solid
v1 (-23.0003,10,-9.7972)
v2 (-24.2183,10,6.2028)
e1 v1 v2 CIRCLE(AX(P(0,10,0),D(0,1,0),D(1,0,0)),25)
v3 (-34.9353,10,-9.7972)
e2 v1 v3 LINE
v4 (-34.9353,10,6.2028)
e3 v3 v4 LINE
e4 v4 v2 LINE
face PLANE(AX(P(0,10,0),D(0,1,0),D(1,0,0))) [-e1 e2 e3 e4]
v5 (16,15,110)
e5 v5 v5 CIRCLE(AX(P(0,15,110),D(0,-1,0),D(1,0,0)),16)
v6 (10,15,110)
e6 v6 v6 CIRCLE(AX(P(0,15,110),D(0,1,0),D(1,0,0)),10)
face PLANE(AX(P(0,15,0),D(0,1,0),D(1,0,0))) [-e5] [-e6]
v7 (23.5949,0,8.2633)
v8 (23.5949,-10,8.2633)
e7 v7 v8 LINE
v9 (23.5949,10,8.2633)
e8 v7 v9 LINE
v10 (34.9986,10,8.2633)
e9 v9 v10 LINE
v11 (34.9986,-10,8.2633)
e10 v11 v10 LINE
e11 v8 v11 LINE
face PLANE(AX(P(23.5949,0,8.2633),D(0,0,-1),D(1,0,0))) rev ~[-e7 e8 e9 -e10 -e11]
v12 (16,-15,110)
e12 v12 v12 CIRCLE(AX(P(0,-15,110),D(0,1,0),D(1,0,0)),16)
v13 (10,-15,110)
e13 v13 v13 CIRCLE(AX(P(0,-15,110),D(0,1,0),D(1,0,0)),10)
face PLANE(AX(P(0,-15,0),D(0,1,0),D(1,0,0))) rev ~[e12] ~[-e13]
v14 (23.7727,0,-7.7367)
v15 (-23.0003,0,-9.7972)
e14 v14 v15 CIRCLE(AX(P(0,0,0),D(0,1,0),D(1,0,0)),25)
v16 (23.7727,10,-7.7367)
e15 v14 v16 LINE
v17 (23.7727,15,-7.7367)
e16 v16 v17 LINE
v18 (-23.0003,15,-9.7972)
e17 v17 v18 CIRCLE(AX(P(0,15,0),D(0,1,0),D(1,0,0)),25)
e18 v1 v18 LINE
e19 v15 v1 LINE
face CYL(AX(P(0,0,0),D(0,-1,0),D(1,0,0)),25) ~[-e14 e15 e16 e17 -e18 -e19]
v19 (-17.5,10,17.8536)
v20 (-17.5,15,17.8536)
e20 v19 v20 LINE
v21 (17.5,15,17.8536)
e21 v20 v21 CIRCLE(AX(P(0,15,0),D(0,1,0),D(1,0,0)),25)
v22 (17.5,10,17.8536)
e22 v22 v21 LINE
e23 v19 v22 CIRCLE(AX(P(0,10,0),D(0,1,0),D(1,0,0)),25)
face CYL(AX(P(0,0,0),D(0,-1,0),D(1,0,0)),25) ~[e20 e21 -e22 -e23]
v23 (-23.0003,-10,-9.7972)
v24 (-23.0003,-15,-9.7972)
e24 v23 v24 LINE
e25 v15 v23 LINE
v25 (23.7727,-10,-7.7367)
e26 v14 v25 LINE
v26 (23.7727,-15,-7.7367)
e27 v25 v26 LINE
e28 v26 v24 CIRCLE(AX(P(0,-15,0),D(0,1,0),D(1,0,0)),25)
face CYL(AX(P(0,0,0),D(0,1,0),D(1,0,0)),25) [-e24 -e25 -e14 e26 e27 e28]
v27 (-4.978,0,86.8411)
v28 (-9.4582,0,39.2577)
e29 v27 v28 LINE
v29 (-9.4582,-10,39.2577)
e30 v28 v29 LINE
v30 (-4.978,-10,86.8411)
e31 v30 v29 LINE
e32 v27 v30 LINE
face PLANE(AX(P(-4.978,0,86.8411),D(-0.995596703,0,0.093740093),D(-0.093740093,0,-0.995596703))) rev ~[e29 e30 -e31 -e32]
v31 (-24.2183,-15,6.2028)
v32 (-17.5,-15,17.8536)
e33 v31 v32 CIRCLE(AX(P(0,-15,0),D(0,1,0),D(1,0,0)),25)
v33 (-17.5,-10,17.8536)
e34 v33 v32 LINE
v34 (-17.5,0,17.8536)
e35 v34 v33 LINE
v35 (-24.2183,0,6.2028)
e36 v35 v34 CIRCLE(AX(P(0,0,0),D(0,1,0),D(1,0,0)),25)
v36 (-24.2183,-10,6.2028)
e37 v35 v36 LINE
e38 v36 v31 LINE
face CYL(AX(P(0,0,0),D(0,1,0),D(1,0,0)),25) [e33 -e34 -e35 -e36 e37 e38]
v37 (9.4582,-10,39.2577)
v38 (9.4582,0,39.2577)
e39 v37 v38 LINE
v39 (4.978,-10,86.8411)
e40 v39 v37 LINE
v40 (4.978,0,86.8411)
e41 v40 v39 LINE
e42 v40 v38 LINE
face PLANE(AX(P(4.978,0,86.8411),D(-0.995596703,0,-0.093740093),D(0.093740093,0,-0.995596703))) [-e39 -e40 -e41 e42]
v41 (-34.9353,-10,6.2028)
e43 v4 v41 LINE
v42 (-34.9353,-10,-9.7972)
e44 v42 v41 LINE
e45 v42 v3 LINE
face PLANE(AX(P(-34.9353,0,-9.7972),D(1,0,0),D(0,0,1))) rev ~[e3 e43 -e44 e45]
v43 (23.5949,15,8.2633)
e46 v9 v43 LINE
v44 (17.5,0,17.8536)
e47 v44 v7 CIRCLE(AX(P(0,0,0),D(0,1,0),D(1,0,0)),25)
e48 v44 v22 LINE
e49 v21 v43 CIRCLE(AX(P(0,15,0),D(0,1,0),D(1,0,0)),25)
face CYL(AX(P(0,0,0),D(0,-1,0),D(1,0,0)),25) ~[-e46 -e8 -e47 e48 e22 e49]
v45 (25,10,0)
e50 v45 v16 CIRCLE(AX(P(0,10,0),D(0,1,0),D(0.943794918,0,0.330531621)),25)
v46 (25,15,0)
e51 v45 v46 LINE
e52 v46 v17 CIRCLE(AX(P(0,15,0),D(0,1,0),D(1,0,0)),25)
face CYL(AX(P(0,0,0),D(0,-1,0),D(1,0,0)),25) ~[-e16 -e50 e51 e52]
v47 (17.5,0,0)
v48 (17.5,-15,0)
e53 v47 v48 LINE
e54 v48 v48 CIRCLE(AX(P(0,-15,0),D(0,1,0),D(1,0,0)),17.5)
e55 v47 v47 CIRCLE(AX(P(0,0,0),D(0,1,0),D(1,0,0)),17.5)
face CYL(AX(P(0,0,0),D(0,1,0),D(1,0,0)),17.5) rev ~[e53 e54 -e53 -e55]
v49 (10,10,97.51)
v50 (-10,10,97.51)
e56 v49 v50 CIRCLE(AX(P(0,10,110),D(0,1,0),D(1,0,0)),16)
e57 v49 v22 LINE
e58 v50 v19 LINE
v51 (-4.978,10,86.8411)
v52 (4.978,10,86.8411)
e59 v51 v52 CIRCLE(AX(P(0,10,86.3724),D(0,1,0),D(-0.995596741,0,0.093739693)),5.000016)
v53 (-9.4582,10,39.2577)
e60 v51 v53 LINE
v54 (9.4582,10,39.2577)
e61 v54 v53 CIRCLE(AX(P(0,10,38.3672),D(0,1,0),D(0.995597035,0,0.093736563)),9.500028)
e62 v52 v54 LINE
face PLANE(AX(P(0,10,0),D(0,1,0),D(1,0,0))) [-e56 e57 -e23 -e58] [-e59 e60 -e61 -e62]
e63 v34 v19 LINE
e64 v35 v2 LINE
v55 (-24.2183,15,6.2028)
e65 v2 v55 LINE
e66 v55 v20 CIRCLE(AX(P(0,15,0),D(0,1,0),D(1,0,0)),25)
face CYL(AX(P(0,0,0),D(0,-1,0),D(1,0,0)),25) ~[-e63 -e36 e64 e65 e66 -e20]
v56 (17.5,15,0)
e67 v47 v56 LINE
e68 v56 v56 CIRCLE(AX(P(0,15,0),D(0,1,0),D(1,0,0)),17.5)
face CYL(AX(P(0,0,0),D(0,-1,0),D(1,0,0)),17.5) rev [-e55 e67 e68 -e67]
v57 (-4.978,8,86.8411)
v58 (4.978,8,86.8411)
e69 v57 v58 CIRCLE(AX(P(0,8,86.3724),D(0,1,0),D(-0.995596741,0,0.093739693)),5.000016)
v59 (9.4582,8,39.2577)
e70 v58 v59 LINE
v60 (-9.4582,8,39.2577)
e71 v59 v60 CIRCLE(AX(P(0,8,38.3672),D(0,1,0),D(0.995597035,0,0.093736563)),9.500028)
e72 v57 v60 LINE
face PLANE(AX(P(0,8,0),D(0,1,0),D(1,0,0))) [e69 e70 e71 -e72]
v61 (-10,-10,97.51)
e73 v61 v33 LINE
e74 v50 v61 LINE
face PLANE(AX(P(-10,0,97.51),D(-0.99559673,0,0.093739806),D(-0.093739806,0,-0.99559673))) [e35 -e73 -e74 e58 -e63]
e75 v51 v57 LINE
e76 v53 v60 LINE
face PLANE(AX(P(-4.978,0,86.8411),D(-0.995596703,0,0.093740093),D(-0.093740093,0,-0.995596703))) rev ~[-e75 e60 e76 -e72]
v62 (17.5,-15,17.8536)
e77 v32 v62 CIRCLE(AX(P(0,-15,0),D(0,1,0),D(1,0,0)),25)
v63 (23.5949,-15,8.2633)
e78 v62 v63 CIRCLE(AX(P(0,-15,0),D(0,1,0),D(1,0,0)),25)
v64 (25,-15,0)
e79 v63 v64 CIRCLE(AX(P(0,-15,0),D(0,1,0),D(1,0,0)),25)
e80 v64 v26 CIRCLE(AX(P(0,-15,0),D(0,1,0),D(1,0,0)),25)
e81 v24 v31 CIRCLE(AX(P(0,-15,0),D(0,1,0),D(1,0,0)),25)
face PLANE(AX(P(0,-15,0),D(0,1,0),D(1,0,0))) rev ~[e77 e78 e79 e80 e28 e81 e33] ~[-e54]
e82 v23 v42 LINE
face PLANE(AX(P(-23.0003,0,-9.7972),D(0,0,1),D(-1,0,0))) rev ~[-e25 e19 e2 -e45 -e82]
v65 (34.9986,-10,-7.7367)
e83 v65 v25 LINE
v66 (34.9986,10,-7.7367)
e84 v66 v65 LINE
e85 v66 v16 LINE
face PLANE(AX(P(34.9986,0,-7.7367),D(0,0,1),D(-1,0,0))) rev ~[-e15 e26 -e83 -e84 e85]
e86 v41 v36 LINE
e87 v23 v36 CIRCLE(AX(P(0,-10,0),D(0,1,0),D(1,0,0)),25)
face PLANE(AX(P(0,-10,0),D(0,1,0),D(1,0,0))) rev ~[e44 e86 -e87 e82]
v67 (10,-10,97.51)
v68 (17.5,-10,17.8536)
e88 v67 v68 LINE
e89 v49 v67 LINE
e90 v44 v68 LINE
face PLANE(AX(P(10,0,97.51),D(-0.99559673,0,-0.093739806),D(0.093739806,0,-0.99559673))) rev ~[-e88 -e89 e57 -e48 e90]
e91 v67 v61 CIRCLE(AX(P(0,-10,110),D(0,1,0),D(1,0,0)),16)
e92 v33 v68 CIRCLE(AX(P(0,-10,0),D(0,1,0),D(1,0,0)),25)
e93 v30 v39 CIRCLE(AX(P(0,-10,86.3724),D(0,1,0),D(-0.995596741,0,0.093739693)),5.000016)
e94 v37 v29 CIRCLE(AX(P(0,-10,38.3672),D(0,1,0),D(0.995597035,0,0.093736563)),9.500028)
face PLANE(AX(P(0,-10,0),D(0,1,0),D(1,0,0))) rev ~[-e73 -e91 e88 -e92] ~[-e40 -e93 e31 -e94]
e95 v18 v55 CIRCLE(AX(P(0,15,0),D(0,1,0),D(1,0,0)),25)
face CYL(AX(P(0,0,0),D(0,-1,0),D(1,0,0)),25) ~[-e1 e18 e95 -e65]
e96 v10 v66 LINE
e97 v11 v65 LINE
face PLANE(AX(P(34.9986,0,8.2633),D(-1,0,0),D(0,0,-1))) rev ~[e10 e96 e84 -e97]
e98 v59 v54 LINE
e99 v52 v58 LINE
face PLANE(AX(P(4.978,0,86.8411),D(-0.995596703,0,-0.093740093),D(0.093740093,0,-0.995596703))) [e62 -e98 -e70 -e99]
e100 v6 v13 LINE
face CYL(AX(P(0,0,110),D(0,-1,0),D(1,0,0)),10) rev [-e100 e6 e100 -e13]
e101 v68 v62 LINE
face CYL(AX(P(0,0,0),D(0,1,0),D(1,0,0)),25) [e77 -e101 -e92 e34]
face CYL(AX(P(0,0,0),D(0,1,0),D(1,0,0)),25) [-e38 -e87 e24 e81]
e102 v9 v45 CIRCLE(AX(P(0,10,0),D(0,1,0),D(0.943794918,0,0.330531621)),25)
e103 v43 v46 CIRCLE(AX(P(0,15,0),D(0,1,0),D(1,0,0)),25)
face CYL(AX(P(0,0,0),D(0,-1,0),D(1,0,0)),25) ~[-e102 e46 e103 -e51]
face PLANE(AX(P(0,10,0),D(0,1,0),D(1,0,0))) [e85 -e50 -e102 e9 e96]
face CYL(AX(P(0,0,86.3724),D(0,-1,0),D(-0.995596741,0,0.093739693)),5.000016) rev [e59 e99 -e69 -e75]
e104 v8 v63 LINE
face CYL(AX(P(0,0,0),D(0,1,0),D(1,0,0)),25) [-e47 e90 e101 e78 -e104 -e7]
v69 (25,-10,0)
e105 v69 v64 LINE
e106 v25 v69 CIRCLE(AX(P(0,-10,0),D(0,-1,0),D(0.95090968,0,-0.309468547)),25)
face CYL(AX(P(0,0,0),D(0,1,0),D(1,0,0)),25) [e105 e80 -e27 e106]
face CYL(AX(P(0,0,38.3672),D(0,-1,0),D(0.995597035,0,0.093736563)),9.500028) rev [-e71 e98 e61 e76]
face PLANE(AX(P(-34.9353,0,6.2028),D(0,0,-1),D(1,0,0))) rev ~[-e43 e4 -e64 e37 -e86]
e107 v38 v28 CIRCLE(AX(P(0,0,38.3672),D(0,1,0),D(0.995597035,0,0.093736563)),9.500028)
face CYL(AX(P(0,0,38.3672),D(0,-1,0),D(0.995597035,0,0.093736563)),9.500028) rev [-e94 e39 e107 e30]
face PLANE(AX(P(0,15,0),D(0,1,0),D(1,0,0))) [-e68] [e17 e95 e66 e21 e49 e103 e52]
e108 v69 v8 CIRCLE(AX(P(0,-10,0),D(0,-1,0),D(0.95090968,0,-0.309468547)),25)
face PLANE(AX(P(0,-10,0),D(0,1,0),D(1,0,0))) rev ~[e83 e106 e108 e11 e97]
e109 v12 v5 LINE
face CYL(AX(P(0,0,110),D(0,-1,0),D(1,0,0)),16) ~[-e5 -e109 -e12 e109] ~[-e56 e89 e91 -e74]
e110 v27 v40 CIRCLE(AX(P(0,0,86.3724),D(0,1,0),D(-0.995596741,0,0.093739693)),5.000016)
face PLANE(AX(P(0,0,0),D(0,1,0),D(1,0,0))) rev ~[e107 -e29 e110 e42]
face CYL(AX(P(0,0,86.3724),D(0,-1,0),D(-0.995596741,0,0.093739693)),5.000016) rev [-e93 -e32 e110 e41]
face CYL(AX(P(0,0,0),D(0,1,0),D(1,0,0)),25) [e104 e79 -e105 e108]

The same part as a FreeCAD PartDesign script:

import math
import FreeCAD as App
import Part
import Sketcher
Q = App.Units.Quantity

doc = App.newDocument("Part")
body = doc.addObject("PartDesign::Body", "Body")
body.AllowCompound = True

# Sketch on XZ plane
sketch1 = body.newObject("Sketcher::SketchObject", "Sketch")
sketch1.AttachmentSupport = (doc.getObject("XZ_Plane"), [""])
sketch1.MapMode = "FlatFace"
sketch1.addGeometry(Part.Circle(App.Vector(0, 0, 0), App.Vector(0, 0, 1), 25), False)
sketch1.addGeometry(Part.Circle(App.Vector(0, 0, 0), App.Vector(0, 0, 1), 18), False)
sketch1.addGeometry(Part.Circle(App.Vector(0, 110, 0), App.Vector(0, 0, 1), 16), False)
sketch1.addGeometry(Part.Circle(App.Vector(0, 110, 0), App.Vector(0, 0, 1), 10), False)
sketch1.addConstraint(Sketcher.Constraint("Coincident", 0, 3, -1, 1))
sketch1.addConstraint(Sketcher.Constraint("Coincident", 1, 3, -1, 1))
sketch1.addConstraint(Sketcher.Constraint("Coincident", 3, 3, 2, 3))
sketch1.addConstraint(Sketcher.Constraint("PointOnObject", 2, 3, -2))
sketch1.addConstraint(Sketcher.Constraint("Diameter", 0, Q("50 mm")))
sketch1.addConstraint(Sketcher.Constraint("Diameter", 1, Q("35 mm")))
sketch1.addConstraint(Sketcher.Constraint("Diameter", 2, Q("32 mm")))
sketch1.addConstraint(Sketcher.Constraint("Diameter", 3, Q("20 mm")))
sketch1.addConstraint(Sketcher.Constraint("DistanceY", -1, 1, 2, 3, Q("110 mm")))
pad1 = body.newObject("PartDesign::Pad", "Pad")
pad1.Profile = sketch1
pad1.Length = 30
pad1.Midplane = True

# Sketch on XZ plane
sketch2 = body.newObject("Sketcher::SketchObject", "Sketch001")
sketch2.AttachmentSupport = (doc.getObject("XZ_Plane"), [""])
sketch2.MapMode = "FlatFace"
sketch2.addGeometry(Part.ArcOfCircle(Part.Circle(App.Vector(0, 0, 0), App.Vector(0, 0, 1), 25), math.radians(-18), math.radians(19)), False)
sketch2.addGeometry(Part.LineSegment(App.Vector(24, 8, 0), App.Vector(35, 8, 0)), False)
sketch2.addGeometry(Part.LineSegment(App.Vector(35, 8, 0), App.Vector(35, -8, 0)), False)
sketch2.addGeometry(Part.LineSegment(App.Vector(35, -8, 0), App.Vector(24, -8, 0)), False)
sketch2.addGeometry(Part.ArcOfCircle(Part.Circle(App.Vector(0, 0, 0), App.Vector(0, 0, 1), 25), math.radians(166), math.radians(203)), False)
sketch2.addGeometry(Part.LineSegment(App.Vector(-23, -10, 0), App.Vector(-35, -10, 0)), False)
sketch2.addGeometry(Part.LineSegment(App.Vector(-35, -10, 0), App.Vector(-35, 6, 0)), False)
sketch2.addGeometry(Part.LineSegment(App.Vector(-35, 6, 0), App.Vector(-24, 6, 0)), False)
sketch2.addGeometry(Part.LineSegment(App.Vector(10, 98, 0), App.Vector(18, 18, 0)), False)
sketch2.addGeometry(Part.ArcOfCircle(Part.Circle(App.Vector(0, 0, 0), App.Vector(0, 0, 1), 25), math.radians(46), math.radians(134)), False)
sketch2.addGeometry(Part.LineSegment(App.Vector(-18, 18, 0), App.Vector(-10, 98, 0)), False)
sketch2.addGeometry(Part.ArcOfCircle(Part.Circle(App.Vector(0, 110, 0), App.Vector(0, 0, 1), 16), math.radians(-129), math.radians(-51)), False)
sketch2.addGeometry(Part.ArcOfCircle(Part.Circle(App.Vector(0, 38, 0), App.Vector(0, 0, 1), 10), math.radians(175), math.radians(365)), False)
sketch2.addGeometry(Part.LineSegment(App.Vector(9, 39, 0), App.Vector(5, 87, 0)), False)
sketch2.addGeometry(Part.ArcOfCircle(Part.Circle(App.Vector(0, 86, 0), App.Vector(0, 0, 1), 5), math.radians(5), math.radians(175)), False)
sketch2.addGeometry(Part.LineSegment(App.Vector(-5, 87, 0), App.Vector(-9, 39, 0)), False)
sketch2.addConstraint(Sketcher.Constraint("Coincident", 0, 2, 1, 1))
sketch2.addConstraint(Sketcher.Constraint("Coincident", 1, 2, 2, 1))
sketch2.addConstraint(Sketcher.Constraint("Coincident", 2, 2, 3, 1))
sketch2.addConstraint(Sketcher.Constraint("Coincident", 3, 2, 0, 1))
sketch2.addConstraint(Sketcher.Constraint("Coincident", 4, 2, 5, 1))
sketch2.addConstraint(Sketcher.Constraint("Coincident", 5, 2, 6, 1))
sketch2.addConstraint(Sketcher.Constraint("Coincident", 6, 2, 7, 1))
sketch2.addConstraint(Sketcher.Constraint("Coincident", 7, 2, 4, 1))
sketch2.addConstraint(Sketcher.Constraint("Coincident", 8, 2, 9, 1))
sketch2.addConstraint(Sketcher.Constraint("Coincident", 9, 2, 10, 1))
sketch2.addConstraint(Sketcher.Constraint("Coincident", 10, 2, 11, 1))
sketch2.addConstraint(Sketcher.Constraint("Coincident", 11, 2, 8, 1))
sketch2.addConstraint(Sketcher.Constraint("Tangent", 12, 2, 13, 1))
sketch2.addConstraint(Sketcher.Constraint("Tangent", 13, 2, 14, 1))
sketch2.addConstraint(Sketcher.Constraint("Tangent", 14, 2, 15, 1))
sketch2.addConstraint(Sketcher.Constraint("Tangent", 15, 2, 12, 1))
sketch2.addConstraint(Sketcher.Constraint("Horizontal", 1))
sketch2.addConstraint(Sketcher.Constraint("Vertical", 2))
sketch2.addConstraint(Sketcher.Constraint("Horizontal", 3))
sketch2.addConstraint(Sketcher.Constraint("Horizontal", 5))
sketch2.addConstraint(Sketcher.Constraint("Vertical", 6))
sketch2.addConstraint(Sketcher.Constraint("Horizontal", 7))
sketch2.addConstraint(Sketcher.Constraint("Coincident", 0, 3, -1, 1))
sketch2.addConstraint(Sketcher.Constraint("Coincident", 4, 3, -1, 1))
sketch2.addConstraint(Sketcher.Constraint("Coincident", 9, 3, -1, 1))
sketch2.addConstraint(Sketcher.Constraint("Equal", 0, 4))
sketch2.addConstraint(Sketcher.Constraint("Equal", 4, 9))
sketch2.addConstraint(Sketcher.Constraint("Symmetric", 10, 2, 11, 2, -2))
sketch2.addConstraint(Sketcher.Constraint("Symmetric", 13, 2, 14, 2, -2))
sketch2.addConstraint(Sketcher.Constraint("Parallel", 8, 13))
sketch2.addConstraint(Sketcher.Constraint("Parallel", 10, 15))
sketch2.addConstraint(Sketcher.Constraint("Equal", 2, 6))
sketch2.addConstraint(Sketcher.Constraint("Radius", 0, Q("25 mm")))
sketch2.addConstraint(Sketcher.Constraint("Radius", 11, Q("16 mm")))
sketch2.addConstraint(Sketcher.Constraint("Radius", 14, Q("5 mm")))
sketch2.addConstraint(Sketcher.Constraint("Radius", 12, Q("9.5 mm")))
sketch2.addConstraint(Sketcher.Constraint("DistanceY", 2, 2, 2, 1, Q("16 mm")))
sketch2.addConstraint(Sketcher.Constraint("DistanceY", -1, 1, 11, 3, Q("110 mm")))
sketch2.addConstraint(Sketcher.Constraint("DistanceX", 10, 2, 11, 2, Q("20 mm")))
sketch2.addConstraint(Sketcher.Constraint("DistanceX", -1, 1, 8, 2, Q("17.5 mm")))
sketch2.addConstraint(Sketcher.Constraint("DistanceX", 3, 2, 3, 1, Q("11.226 mm")))
sketch2.addConstraint(Sketcher.Constraint("DistanceX", 5, 2, 5, 1, Q("11.935 mm")))
sketch2.addConstraint(Sketcher.Constraint("DistanceX", 7, 1, 7, 2, Q("10.717 mm")))
sketch2.addConstraint(Sketcher.Constraint("DistanceX", 1, 1, 1, 2, Q("11.4037 mm")))
sketch2.addConstraint(Sketcher.Constraint("DistanceY", -1, 1, 13, 2, Q("86.841 mm")))
pad2 = body.newObject("PartDesign::Pad", "Pad001")
pad2.Profile = sketch2
pad2.Length = 20
pad2.Midplane = True

# Sketch on XZ plane
sketch3 = body.newObject("Sketcher::SketchObject", "Sketch002")
sketch3.AttachmentSupport = (doc.getObject("XZ_Plane"), [""])
sketch3.MapMode = "FlatFace"
sketch3.addGeometry(Part.LineSegment(App.Vector(5, 87, 0), App.Vector(9, 39, 0)), False)
sketch3.addGeometry(Part.ArcOfCircle(Part.Circle(App.Vector(0, 38, 0), App.Vector(0, 0, 1), 10), math.radians(175), math.radians(365)), False)
sketch3.addGeometry(Part.LineSegment(App.Vector(-9, 39, 0), App.Vector(-5, 87, 0)), False)
sketch3.addGeometry(Part.ArcOfCircle(Part.Circle(App.Vector(0, 86, 0), App.Vector(0, 0, 1), 5), math.radians(5), math.radians(175)), False)
sketch3.addConstraint(Sketcher.Constraint("Tangent", 0, 2, 1, 2))
sketch3.addConstraint(Sketcher.Constraint("Tangent", 1, 1, 2, 1))
sketch3.addConstraint(Sketcher.Constraint("Tangent", 2, 2, 3, 2))
sketch3.addConstraint(Sketcher.Constraint("Tangent", 3, 1, 0, 1))
sketch3.addConstraint(Sketcher.Constraint("Symmetric", 0, 2, 1, 1, -2))
sketch3.addConstraint(Sketcher.Constraint("Radius", 3, Q("5 mm")))
sketch3.addConstraint(Sketcher.Constraint("Radius", 1, Q("9.5 mm")))
sketch3.addConstraint(Sketcher.Constraint("Angle", 0, Q("-84.6212 deg")))
sketch3.addConstraint(Sketcher.Constraint("DistanceY", -1, 1, 2, 2, Q("86.841 mm")))
pad3 = body.newObject("PartDesign::Pad", "Pad002")
pad3.Profile = sketch3
pad3.Length = 8
pad3.Reversed = True

doc.recompute()
